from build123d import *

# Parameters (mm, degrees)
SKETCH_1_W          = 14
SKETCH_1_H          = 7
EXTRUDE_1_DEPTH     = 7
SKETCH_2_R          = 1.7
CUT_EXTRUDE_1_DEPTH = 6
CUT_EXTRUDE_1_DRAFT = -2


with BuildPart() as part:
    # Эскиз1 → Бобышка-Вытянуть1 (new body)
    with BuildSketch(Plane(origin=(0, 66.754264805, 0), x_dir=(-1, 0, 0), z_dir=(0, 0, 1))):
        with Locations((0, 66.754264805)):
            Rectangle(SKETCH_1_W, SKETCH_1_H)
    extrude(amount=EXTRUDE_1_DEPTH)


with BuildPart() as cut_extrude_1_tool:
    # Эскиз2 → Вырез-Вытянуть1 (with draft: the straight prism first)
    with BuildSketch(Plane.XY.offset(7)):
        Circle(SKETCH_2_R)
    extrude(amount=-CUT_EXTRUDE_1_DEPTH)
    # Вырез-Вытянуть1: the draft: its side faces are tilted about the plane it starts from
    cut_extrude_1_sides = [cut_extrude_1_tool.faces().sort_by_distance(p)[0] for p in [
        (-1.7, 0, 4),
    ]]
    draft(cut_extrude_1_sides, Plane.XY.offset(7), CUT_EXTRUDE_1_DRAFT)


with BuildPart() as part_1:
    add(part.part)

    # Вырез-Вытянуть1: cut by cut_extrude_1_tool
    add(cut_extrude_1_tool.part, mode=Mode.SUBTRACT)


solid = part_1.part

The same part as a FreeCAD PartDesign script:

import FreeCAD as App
import Part
import Sketcher

V = App.Vector


def faces_at(feature, points):
    """Names of the faces that lie closest to the given points."""
    faces = feature.Shape.Faces
    near = lambda p: min(range(len(faces)), key=lambda i: faces[i].distToShape(Part.Vertex(*p))[0])
    return sorted({f"Face{near(p) + 1}" for p in points})

doc = App.newDocument("Part")
body = doc.addObject("PartDesign::Body", "Body")

sketch1 = body.newObject("Sketcher::SketchObject", "Sketch")
sketch1.AttachmentSupport = (doc.getObject("XY_Plane"), [""])
sketch1.MapMode = "FlatFace"
sketch1.addGeometry(Part.LineSegment(V(7, -4, 0), V(7, 4, 0)), False)
sketch1.addGeometry(Part.LineSegment(V(7, 4, 0), V(-7, 4, 0)), False)
sketch1.addGeometry(Part.LineSegment(V(-7, 4, 0), V(-7, -4, 0)), False)
sketch1.addGeometry(Part.LineSegment(V(-7, -4, 0), V(7, -4, 0)), False)
sketch1.addConstraint(Sketcher.Constraint("Coincident", 0, 2, 1, 1))
sketch1.addConstraint(Sketcher.Constraint("Coincident", 1, 2, 2, 1))
sketch1.addConstraint(Sketcher.Constraint("Coincident", 2, 2, 3, 1))
sketch1.addConstraint(Sketcher.Constraint("Coincident", 3, 2, 0, 1))
sketch1.addConstraint(Sketcher.Constraint("Vertical", 0))
sketch1.addConstraint(Sketcher.Constraint("Horizontal", 1))
sketch1.addConstraint(Sketcher.Constraint("Vertical", 2))
sketch1.addConstraint(Sketcher.Constraint("Horizontal", 3))
sketch1.addConstraint(Sketcher.Constraint("Symmetric", 0, 2, 2, 2, -1, 1))
sketch1.addConstraint(Sketcher.Constraint("DistanceX", 1, 2, 1, 1, 14.0))
sketch1.addConstraint(Sketcher.Constraint("DistanceY", 0, 1, 0, 2, 7.0))
pad1 = body.newObject("PartDesign::Pad", "Pad")
pad1.Profile = sketch1
pad1.Length = 7
body2 = doc.addObject("PartDesign::Body", "Body001")

sketch2 = body2.newObject("Sketcher::SketchObject", "Sketch001")
sketch2.AttachmentSupport = (doc.getObject("XY_Plane001"), [""])
sketch2.MapMode = "FlatFace"
sketch2.AttachmentOffset = App.Placement(V(0, 0, 7), App.Rotation())
sketch2.addGeometry(Part.Circle(V(0, 0, 0), V(0, 0, 1), 1.7), False)
sketch2.addConstraint(Sketcher.Constraint("Coincident", 0, 3, -1, 1))
sketch2.addConstraint(Sketcher.Constraint("Diameter", 0, 3.4))
pad2 = body2.newObject("PartDesign::Pad", "Pad001")
pad2.Profile = sketch2
pad2.Length = 6
pad2.Reversed = True
doc.recompute()

datumplane = body2.newObject("PartDesign::Plane", "DatumPlane")
datumplane.AttachmentSupport = (doc.getObject("XY_Plane001"), [""])
datumplane.MapMode = "FlatFace"
datumplane.AttachmentOffset = App.Placement(V(0, 0, 7), App.Rotation())
draft = body2.newObject("PartDesign::Draft", "Draft")
draft.Base = (pad2, faces_at(pad2, [(-1.7, 0, 4)]))
draft.NeutralPlane = (datumplane, [""])
draft.Angle = 2
draft.Reversed = True
doc.recompute()

boolean = body.newObject("PartDesign::Boolean", "Boolean")
boolean.Type = "Cut"
boolean.addObjects([body2])

doc.recompute()
